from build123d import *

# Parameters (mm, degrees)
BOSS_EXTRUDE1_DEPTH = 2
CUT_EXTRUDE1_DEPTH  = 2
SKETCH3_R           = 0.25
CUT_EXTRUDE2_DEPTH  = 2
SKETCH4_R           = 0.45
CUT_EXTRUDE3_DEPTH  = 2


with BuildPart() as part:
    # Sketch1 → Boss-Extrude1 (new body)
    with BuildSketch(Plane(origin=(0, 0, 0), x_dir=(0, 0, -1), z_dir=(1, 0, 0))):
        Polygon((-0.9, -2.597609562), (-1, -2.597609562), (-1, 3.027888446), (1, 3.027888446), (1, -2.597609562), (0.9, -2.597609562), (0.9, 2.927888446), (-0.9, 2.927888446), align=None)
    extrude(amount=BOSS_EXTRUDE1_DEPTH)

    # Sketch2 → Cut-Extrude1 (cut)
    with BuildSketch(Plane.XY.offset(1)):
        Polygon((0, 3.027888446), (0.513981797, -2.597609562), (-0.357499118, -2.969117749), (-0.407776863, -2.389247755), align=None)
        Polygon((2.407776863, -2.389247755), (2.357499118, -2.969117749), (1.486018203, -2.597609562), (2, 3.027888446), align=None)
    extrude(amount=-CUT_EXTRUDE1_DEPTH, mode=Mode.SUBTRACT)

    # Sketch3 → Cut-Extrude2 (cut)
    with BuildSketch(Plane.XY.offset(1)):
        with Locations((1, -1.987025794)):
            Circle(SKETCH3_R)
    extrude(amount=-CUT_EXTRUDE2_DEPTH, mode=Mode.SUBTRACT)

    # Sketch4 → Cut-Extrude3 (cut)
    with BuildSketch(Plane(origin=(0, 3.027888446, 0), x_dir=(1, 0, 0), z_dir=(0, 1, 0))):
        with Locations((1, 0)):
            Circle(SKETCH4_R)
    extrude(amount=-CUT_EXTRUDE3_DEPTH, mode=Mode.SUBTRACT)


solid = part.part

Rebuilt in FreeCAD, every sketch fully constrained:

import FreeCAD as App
import Part
import Sketcher

V = App.Vector
Q = App.Units.Quantity

doc = App.newDocument("Part")
body = doc.addObject("PartDesign::Body", "Body")

sketch1 = body.newObject("Sketcher::SketchObject", "Sketch")
sketch1.AttachmentSupport = (doc.getObject("YZ_Plane"), [""])
sketch1.MapMode = "FlatFace"
sketch1.addGeometry([
    Part.LineSegment(V(-2.6, 1, 0), V(-2.6, 0.9, 0)),
    Part.LineSegment(V(-2.6, 0.9, 0), V(2.93, 0.9, 0)),
    Part.LineSegment(V(2.93, 0.9, 0), V(2.93, -0.9, 0)),
    Part.LineSegment(V(2.93, -0.9, 0), V(-2.6, -0.9, 0)),
    Part.LineSegment(V(-2.6, -0.9, 0), V(-2.6, -1, 0)),
    Part.LineSegment(V(-2.6, -1, 0), V(3.03, -1, 0)),
    Part.LineSegment(V(3.03, -1, 0), V(3.03, 1, 0)),
    Part.LineSegment(V(3.03, 1, 0), V(-2.6, 1, 0)),
], False)
sketch1.addConstraint([
    Sketcher.Constraint("Coincident", 0, 2, 1, 1),
    Sketcher.Constraint("Coincident", 1, 2, 2, 1),
    Sketcher.Constraint("Coincident", 2, 2, 3, 1),
    Sketcher.Constraint("Coincident", 3, 2, 4, 1),
    Sketcher.Constraint("Coincident", 4, 2, 5, 1),
    Sketcher.Constraint("Coincident", 5, 2, 6, 1),
    Sketcher.Constraint("Coincident", 6, 2, 7, 1),
    Sketcher.Constraint("Coincident", 7, 2, 0, 1),
    Sketcher.Constraint("Vertical", 0),
    Sketcher.Constraint("Horizontal", 1),
    Sketcher.Constraint("Vertical", 2),
    Sketcher.Constraint("Horizontal", 3),
    Sketcher.Constraint("Vertical", 4),
    Sketcher.Constraint("Horizontal", 5),
    Sketcher.Constraint("Vertical", 6),
    Sketcher.Constraint("Horizontal", 7),
    Sketcher.Constraint("Symmetric", 0, 2, 3, 2, -1),
    Sketcher.Constraint("Equal", 0, 4),
    Sketcher.Constraint("DistanceY", 6, 1, 6, 2, Q("2 mm")),
    Sketcher.Constraint("DistanceY", 0, 2, 0, 1, Q("0.1 mm")),
    Sketcher.Constraint("DistanceX", 2, 2, 5, 2, Q("0.1 mm")),
    Sketcher.Constraint("DistanceX", 1, 1, 1, 2, Q("5.525498 mm")),
    Sketcher.Constraint("DistanceX", 0, 2, -1, 1, Q("2.59761 mm")),
])
pad1 = body.newObject("PartDesign::Pad", "Pad")
pad1.Profile = sketch1
pad1.Length = 2

sketch2 = body.newObject("Sketcher::SketchObject", "Sketch001")
sketch2.AttachmentSupport = (doc.getObject("XY_Plane"), [""])
sketch2.MapMode = "FlatFace"
sketch2.AttachmentOffset = App.Placement(V(0, 0, 1), App.Rotation())
sketch2.addGeometry([
    Part.LineSegment(V(0.5, -2.6, 0), V(0, 3, 0)),
    Part.LineSegment(V(0, 3, 0), V(-0.4, -2.4, 0)),
    Part.LineSegment(V(-0.4, -2.4, 0), V(-0.4, -3, 0)),
    Part.LineSegment(V(-0.4, -3, 0), V(0.5, -2.6, 0)),
    Part.LineSegment(V(2.4, -3, 0), V(2.4, -2.4, 0)),
    Part.LineSegment(V(2.4, -2.4, 0), V(2, 3, 0)),
    Part.LineSegment(V(2, 3, 0), V(1.5, -2.6, 0)),
    Part.LineSegment(V(1.5, -2.6, 0), V(2.4, -3, 0)),
], False)
sketch2.addConstraint([
    Sketcher.Constraint("Coincident", 0, 2, 1, 1),
    Sketcher.Constraint("Coincident", 1, 2, 2, 1),
    Sketcher.Constraint("Coincident", 2, 2, 3, 1),
    Sketcher.Constraint("Coincident", 3, 2, 0, 1),
    Sketcher.Constraint("Coincident", 4, 2, 5, 1),
    Sketcher.Constraint("Coincident", 5, 2, 6, 1),
    Sketcher.Constraint("Coincident", 6, 2, 7, 1),
    Sketcher.Constraint("Coincident", 7, 2, 4, 1),
    Sketcher.Constraint("PointOnObject", 0, 2, -2),
    Sketcher.Constraint("Horizontal", 1, 2, 4, 2),
    Sketcher.Constraint("Horizontal", 0, 2, 5, 2),
    Sketcher.Constraint("Horizontal", 3, 2, 6, 2),
    Sketcher.Constraint("Horizontal", 2, 2, 7, 2),
    Sketcher.Constraint("Equal", 2, 4),
    Sketcher.Constraint("Equal", 1, 5),
    Sketcher.Constraint("Equal", 0, 6),
    Sketcher.Constraint("DistanceX", -1, 1, 5, 2, Q("2 mm")),
    Sketcher.Constraint("DistanceX", 2, 2, 7, 2, Q("2.714998 mm")),
    Sketcher.Constraint("DistanceY", 3, 2, 0, 2, Q("5.625498 mm")),
    Sketcher.Constraint("Distance", 0, Q("5.64893 mm")),
    Sketcher.Constraint("DistanceY", -1, 1, 0, 2, Q("3.027888 mm")),
    Sketcher.Constraint("DistanceY", 2, 2, 1, 2, Q("0.57987 mm")),
    Sketcher.Constraint("DistanceX", 1, 2, 3, 2, Q("0.921759 mm")),
    Sketcher.Constraint("DistanceY", 3, 2, 1, 2, Q("0.208362 mm")),
])
pocket1 = body.newObject("PartDesign::Pocket", "Pocket")
pocket1.Profile = sketch2
pocket1.Length = 2

sketch3 = body.newObject("Sketcher::SketchObject", "Sketch002")
sketch3.AttachmentSupport = (doc.getObject("XY_Plane"), [""])
sketch3.MapMode = "FlatFace"
sketch3.AttachmentOffset = App.Placement(V(0, 0, 1), App.Rotation())
sketch3.addGeometry(Part.Circle(V(1, -1.99, 0), V(0, 0, 1), 0.25), False)
sketch3.addConstraint([
    Sketcher.Constraint("Diameter", 0, Q("0.5 mm")),
    Sketcher.Constraint("DistanceX", -1, 1, 0, 3, Q("1 mm")),
    Sketcher.Constraint("DistanceY", 0, 3, -1, 1, Q("1.987026 mm")),
])
pocket2 = body.newObject("PartDesign::Pocket", "Pocket001")
pocket2.Profile = sketch3
pocket2.Length = 2

sketch4 = body.newObject("Sketcher::SketchObject", "Sketch003")
sketch4.AttachmentSupport = (doc.getObject("XZ_Plane"), [""])
sketch4.MapMode = "FlatFace"
sketch4.AttachmentOffset = App.Placement(V(0, 0, -3.027888), App.Rotation())
sketch4.addGeometry(Part.Circle(V(1, 0, 0), V(0, 0, 1), 0.45), False)
sketch4.addConstraint([
    Sketcher.Constraint("PointOnObject", 0, 3, -1),
    Sketcher.Constraint("Diameter", 0, Q("0.9 mm")),
    Sketcher.Constraint("DistanceX", -1, 1, 0, 3, Q("1 mm")),
])
pocket3 = body.newObject("PartDesign::Pocket", "Pocket002")
pocket3.Profile = sketch4
pocket3.Length = 2
pocket3.Reversed = True

doc.recompute()
